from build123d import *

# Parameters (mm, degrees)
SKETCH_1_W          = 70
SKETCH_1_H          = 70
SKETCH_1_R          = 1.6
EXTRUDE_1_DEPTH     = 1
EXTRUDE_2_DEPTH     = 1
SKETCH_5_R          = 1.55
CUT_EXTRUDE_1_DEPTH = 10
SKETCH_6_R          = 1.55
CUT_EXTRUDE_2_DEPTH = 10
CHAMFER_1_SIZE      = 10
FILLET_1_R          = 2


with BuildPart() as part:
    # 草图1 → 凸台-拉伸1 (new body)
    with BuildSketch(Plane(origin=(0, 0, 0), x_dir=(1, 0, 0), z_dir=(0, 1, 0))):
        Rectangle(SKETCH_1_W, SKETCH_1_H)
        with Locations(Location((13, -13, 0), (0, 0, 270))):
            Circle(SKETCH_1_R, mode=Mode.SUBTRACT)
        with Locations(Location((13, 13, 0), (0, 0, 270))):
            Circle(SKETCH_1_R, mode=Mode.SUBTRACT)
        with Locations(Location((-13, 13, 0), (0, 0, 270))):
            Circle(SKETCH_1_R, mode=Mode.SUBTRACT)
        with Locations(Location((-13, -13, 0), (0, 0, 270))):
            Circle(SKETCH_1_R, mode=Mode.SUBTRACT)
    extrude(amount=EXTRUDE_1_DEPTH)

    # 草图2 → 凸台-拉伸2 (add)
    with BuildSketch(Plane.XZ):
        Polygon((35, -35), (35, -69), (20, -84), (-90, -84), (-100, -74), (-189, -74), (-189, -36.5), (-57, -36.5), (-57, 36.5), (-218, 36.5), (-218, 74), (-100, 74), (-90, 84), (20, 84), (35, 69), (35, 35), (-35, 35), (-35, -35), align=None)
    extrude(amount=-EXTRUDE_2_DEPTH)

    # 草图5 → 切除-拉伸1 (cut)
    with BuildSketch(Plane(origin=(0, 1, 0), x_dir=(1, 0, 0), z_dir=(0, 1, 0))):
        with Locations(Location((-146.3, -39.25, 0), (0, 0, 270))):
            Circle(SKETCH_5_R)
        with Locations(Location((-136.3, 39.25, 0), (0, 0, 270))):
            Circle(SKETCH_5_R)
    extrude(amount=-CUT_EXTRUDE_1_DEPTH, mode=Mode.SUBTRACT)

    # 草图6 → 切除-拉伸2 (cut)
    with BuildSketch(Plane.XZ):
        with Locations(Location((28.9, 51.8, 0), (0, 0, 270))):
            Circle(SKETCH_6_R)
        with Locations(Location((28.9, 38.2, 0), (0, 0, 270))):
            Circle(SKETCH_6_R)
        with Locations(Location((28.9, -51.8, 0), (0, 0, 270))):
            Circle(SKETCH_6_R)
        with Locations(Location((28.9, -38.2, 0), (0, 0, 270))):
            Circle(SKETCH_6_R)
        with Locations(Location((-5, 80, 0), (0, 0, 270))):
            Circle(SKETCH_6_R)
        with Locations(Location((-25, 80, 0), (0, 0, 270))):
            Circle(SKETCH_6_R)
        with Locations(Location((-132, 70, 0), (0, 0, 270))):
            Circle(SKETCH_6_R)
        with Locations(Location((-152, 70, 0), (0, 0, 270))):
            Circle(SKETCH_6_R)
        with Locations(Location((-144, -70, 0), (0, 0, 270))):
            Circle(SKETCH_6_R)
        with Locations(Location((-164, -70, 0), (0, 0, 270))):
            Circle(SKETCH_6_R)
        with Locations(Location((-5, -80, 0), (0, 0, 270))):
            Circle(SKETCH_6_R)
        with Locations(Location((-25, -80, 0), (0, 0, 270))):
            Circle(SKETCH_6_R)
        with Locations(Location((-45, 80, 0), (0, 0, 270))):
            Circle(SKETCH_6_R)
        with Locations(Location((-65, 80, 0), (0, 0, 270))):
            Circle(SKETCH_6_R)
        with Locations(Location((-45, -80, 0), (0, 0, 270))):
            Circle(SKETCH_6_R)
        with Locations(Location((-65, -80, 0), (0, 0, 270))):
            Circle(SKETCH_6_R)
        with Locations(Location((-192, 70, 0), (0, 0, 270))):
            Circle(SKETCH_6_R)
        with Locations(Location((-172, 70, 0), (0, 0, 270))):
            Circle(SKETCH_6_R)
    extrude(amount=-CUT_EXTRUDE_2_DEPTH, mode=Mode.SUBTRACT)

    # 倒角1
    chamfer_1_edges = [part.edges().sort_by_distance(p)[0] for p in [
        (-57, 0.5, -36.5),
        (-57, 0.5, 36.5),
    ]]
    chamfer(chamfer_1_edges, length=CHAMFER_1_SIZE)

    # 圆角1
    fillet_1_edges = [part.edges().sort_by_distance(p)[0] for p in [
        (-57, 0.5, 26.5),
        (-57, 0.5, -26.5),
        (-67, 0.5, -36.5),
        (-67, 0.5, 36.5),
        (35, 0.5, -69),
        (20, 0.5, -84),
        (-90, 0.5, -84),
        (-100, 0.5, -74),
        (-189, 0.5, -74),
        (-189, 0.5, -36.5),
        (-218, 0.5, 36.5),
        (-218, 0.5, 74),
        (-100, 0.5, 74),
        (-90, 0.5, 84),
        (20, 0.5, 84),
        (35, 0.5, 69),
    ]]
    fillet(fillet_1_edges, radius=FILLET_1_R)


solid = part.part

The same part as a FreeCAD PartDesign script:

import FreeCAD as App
import Part
import Sketcher
Q = App.Units.Quantity


def edges_at(feature, points):
    """Names of the edges that pass closest to the given points."""
    edges = feature.Shape.Edges
    near = lambda p: min(range(len(edges)), key=lambda i: edges[i].distToShape(Part.Vertex(*p))[0])
    return sorted({f"Edge{near(p) + 1}" for p in points})

doc = App.newDocument("Part")
body = doc.addObject("PartDesign::Body", "Body")

sketch1 = doc.addObject("Sketcher::SketchObject", "Sketch")
body.addObject(sketch1)
sketch1.AttachmentSupport = (doc.XZ_Plane, [""])
sketch1.MapMode = "FlatFace"
sketch1.addGeometry(Part.LineSegment(App.Vector(-35, -35, 0), App.Vector(-35, 35, 0)), False)
sketch1.addGeometry(Part.LineSegment(App.Vector(-35, 35, 0), App.Vector(35, 35, 0)), False)
sketch1.addGeometry(Part.LineSegment(App.Vector(35, 35, 0), App.Vector(35, -35, 0)), False)
sketch1.addGeometry(Part.LineSegment(App.Vector(35, -35, 0), App.Vector(-35, -35, 0)), False)
sketch1.addGeometry(Part.Circle(App.Vector(-13, 13, 0), App.Vector(0, 0, 1), 1.6), False)
sketch1.addGeometry(Part.Circle(App.Vector(13, 13, 0), App.Vector(0, 0, 1), 1.6), False)
sketch1.addGeometry(Part.Circle(App.Vector(-13, -13, 0), App.Vector(0, 0, 1), 1.6), False)
sketch1.addGeometry(Part.Circle(App.Vector(13, -13, 0), App.Vector(0, 0, 1), 1.6), False)
sketch1.addConstraint(Sketcher.Constraint("Coincident", 0, 2, 1, 1))
sketch1.addConstraint(Sketcher.Constraint("Coincident", 1, 2, 2, 1))
sketch1.addConstraint(Sketcher.Constraint("Coincident", 2, 2, 3, 1))
sketch1.addConstraint(Sketcher.Constraint("Coincident", 3, 2, 0, 1))
sketch1.addConstraint(Sketcher.Constraint("Vertical", 0))
sketch1.addConstraint(Sketcher.Constraint("Horizontal", 1))
sketch1.addConstraint(Sketcher.Constraint("Vertical", 2))
sketch1.addConstraint(Sketcher.Constraint("Horizontal", 3))
sketch1.addConstraint(Sketcher.Constraint("Equal", 4, 5))
sketch1.addConstraint(Sketcher.Constraint("Equal", 5, 6))
sketch1.addConstraint(Sketcher.Constraint("Equal", 6, 7))
sketch1.addConstraint(Sketcher.Constraint("Symmetric", 5, 3, 6, 3, -1, 1))
sketch1.addConstraint(Sketcher.Constraint("Symmetric", 4, 3, 7, 3, -1, 1))
sketch1.addConstraint(Sketcher.Constraint("Symmetric", 0, 2, 2, 2, -1, 1))
sketch1.addConstraint(Sketcher.Constraint("Symmetric", 4, 3, 5, 3, -2))
sketch1.addConstraint(Sketcher.Constraint("Equal", 3, 0))
sketch1.addConstraint(Sketcher.Constraint("Diameter", 4, Q("3.2 mm")))
sketch1.addConstraint(Sketcher.Constraint("DistanceX", 1, 1, 1, 2, Q("70 mm")))
sketch1.addConstraint(Sketcher.Constraint("DistanceX", 4, 3, -1, 1, Q("13 mm")))
sketch1.addConstraint(Sketcher.Constraint("DistanceY", -1, 1, 4, 3, Q("13 mm")))
pad1 = doc.addObject("PartDesign::Pad", "Pad")
body.addObject(pad1)
pad1.Profile = sketch1
pad1.Length = 1
pad1.Reversed = True

sketch2 = doc.addObject("Sketcher::SketchObject", "Sketch001")
body.addObject(sketch2)
sketch2.AttachmentSupport = (doc.XZ_Plane, [""])
sketch2.MapMode = "FlatFace"
sketch2.addGeometry(Part.LineSegment(App.Vector(35, -69, 0), App.Vector(35, -35, 0)), False)
sketch2.addGeometry(Part.LineSegment(App.Vector(35, -35, 0), App.Vector(-35, -35, 0)), False)
sketch2.addGeometry(Part.LineSegment(App.Vector(-35, -35, 0), App.Vector(-35, 35, 0)), False)
sketch2.addGeometry(Part.LineSegment(App.Vector(-35, 35, 0), App.Vector(35, 35, 0)), False)
sketch2.addGeometry(Part.LineSegment(App.Vector(35, 35, 0), App.Vector(35, 69, 0)), False)
sketch2.addGeometry(Part.LineSegment(App.Vector(35, 69, 0), App.Vector(20, 84, 0)), False)
sketch2.addGeometry(Part.LineSegment(App.Vector(20, 84, 0), App.Vector(-90, 84, 0)), False)
sketch2.addGeometry(Part.LineSegment(App.Vector(-90, 84, 0), App.Vector(-100, 74, 0)), False)
sketch2.addGeometry(Part.LineSegment(App.Vector(-100, 74, 0), App.Vector(-218, 74, 0)), False)
sketch2.addGeometry(Part.LineSegment(App.Vector(-218, 74, 0), App.Vector(-218, 36.5, 0)), False)
sketch2.addGeometry(Part.LineSegment(App.Vector(-218, 36.5, 0), App.Vector(-57, 36.5, 0)), False)
sketch2.addGeometry(Part.LineSegment(App.Vector(-57, 36.5, 0), App.Vector(-57, -36.5, 0)), False)
sketch2.addGeometry(Part.LineSegment(App.Vector(-57, -36.5, 0), App.Vector(-189, -36.5, 0)), False)
sketch2.addGeometry(Part.LineSegment(App.Vector(-189, -36.5, 0), App.Vector(-189, -74, 0)), False)
sketch2.addGeometry(Part.LineSegment(App.Vector(-189, -74, 0), App.Vector(-100, -74, 0)), False)
sketch2.addGeometry(Part.LineSegment(App.Vector(-100, -74, 0), App.Vector(-90, -84, 0)), False)
sketch2.addGeometry(Part.LineSegment(App.Vector(-90, -84, 0), App.Vector(20, -84, 0)), False)
sketch2.addGeometry(Part.LineSegment(App.Vector(20, -84, 0), App.Vector(35, -69, 0)), False)
sketch2.addConstraint(Sketcher.Constraint("Coincident", 0, 2, 1, 1))
sketch2.addConstraint(Sketcher.Constraint("Coincident", 1, 2, 2, 1))
sketch2.addConstraint(Sketcher.Constraint("Coincident", 2, 2, 3, 1))
sketch2.addConstraint(Sketcher.Constraint("Coincident", 3, 2, 4, 1))
sketch2.addConstraint(Sketcher.Constraint("Coincident", 4, 2, 5, 1))
sketch2.addConstraint(Sketcher.Constraint("Coincident", 5, 2, 6, 1))
sketch2.addConstraint(Sketcher.Constraint("Coincident", 6, 2, 7, 1))
sketch2.addConstraint(Sketcher.Constraint("Coincident", 7, 2, 8, 1))
sketch2.addConstraint(Sketcher.Constraint("Coincident", 8, 2, 9, 1))
sketch2.addConstraint(Sketcher.Constraint("Coincident", 9, 2, 10, 1))
sketch2.addConstraint(Sketcher.Constraint("Coincident", 10, 2, 11, 1))
sketch2.addConstraint(Sketcher.Constraint("Coincident", 11, 2, 12, 1))
sketch2.addConstraint(Sketcher.Constraint("Coincident", 12, 2, 13, 1))
sketch2.addConstraint(Sketcher.Constraint("Coincident", 13, 2, 14, 1))
sketch2.addConstraint(Sketcher.Constraint("Coincident", 14, 2, 15, 1))
sketch2.addConstraint(Sketcher.Constraint("Coincident", 15, 2, 16, 1))
sketch2.addConstraint(Sketcher.Constraint("Coincident", 16, 2, 17, 1))
sketch2.addConstraint(Sketcher.Constraint("Coincident", 17, 2, 0, 1))
sketch2.addConstraint(Sketcher.Constraint("Vertical", 0))
sketch2.addConstraint(Sketcher.Constraint("Horizontal", 1))
sketch2.addConstraint(Sketcher.Constraint("Vertical", 2))
sketch2.addConstraint(Sketcher.Constraint("Horizontal", 3))
sketch2.addConstraint(Sketcher.Constraint("Vertical", 4))
sketch2.addConstraint(Sketcher.Constraint("Horizontal", 6))
sketch2.addConstraint(Sketcher.Constraint("Horizontal", 8))
sketch2.addConstraint(Sketcher.Constraint("Vertical", 9))
sketch2.addConstraint(Sketcher.Constraint("Horizontal", 10))
sketch2.addConstraint(Sketcher.Constraint("Vertical", 11))
sketch2.addConstraint(Sketcher.Constraint("Horizontal", 12))
sketch2.addConstraint(Sketcher.Constraint("Vertical", 13))
sketch2.addConstraint(Sketcher.Constraint("Horizontal", 14))
sketch2.addConstraint(Sketcher.Constraint("Horizontal", 16))
sketch2.addConstraint(Sketcher.Constraint("Symmetric", 0, 2, 2, 2, -1, 1))
sketch2.addConstraint(Sketcher.Constraint("Symmetric", 7, 2, 14, 2, -1))
sketch2.addConstraint(Sketcher.Constraint("Symmetric", 6, 2, 15, 2, -1))
sketch2.addConstraint(Sketcher.Constraint("Symmetric", 4, 2, 17, 2, -1))
sketch2.addConstraint(Sketcher.Constraint("Perpendicular", 5, 7))
sketch2.addConstraint(Sketcher.Constraint("Perpendicular", 7, 15))
sketch2.addConstraint(Sketcher.Constraint("Perpendicular", 15, 17))
sketch2.addConstraint(Sketcher.Constraint("Equal", 3, 2))
sketch2.addConstraint(Sketcher.Constraint("Equal", 9, 13))
sketch2.addConstraint(Sketcher.Constraint("DistanceX", 1, 2, 1, 1, Q("70 mm")))
sketch2.addConstraint(Sketcher.Constraint("DistanceX", 6, 2, 6, 1, Q("110 mm")))
sketch2.addConstraint(Sketcher.Constraint("DistanceX", 8, 2, 8, 1, Q("118 mm")))
sketch2.addConstraint(Sketcher.Constraint("DistanceX", 10, 1, 10, 2, Q("161 mm")))
sketch2.addConstraint(Sketcher.Constraint("DistanceX", 12, 2, 12, 1, Q("132 mm")))
sketch2.addConstraint(Sketcher.Constraint("DistanceY", 0, 1, 0, 2, Q("34 mm")))
sketch2.addConstraint(Sketcher.Constraint("DistanceY", 11, 2, 11, 1, Q("73 mm")))
sketch2.addConstraint(Sketcher.Constraint("DistanceY", 9, 2, 9, 1, Q("37.5 mm")))
sketch2.addConstraint(Sketcher.Constraint("DistanceX", -1, 1, 5, 2, Q("20 mm")))
pad2 = doc.addObject("PartDesign::Pad", "Pad001")
body.addObject(pad2)
pad2.Profile = sketch2
pad2.Length = 1
pad2.Reversed = True

sketch3 = doc.addObject("Sketcher::SketchObject", "Sketch002")
body.addObject(sketch3)
sketch3.AttachmentSupport = (doc.XZ_Plane, [""])
sketch3.MapMode = "FlatFace"
sketch3.AttachmentOffset = App.Placement(App.Vector(0, 0, -1), App.Rotation())
sketch3.addGeometry(Part.Circle(App.Vector(-146.3, 39.25, 0), App.Vector(0, 0, 1), 1.55), False)
sketch3.addGeometry(Part.Circle(App.Vector(-136.3, -39.25, 0), App.Vector(0, 0, 1), 1.55), False)
sketch3.addConstraint(Sketcher.Constraint("Equal", 0, 1))
sketch3.addConstraint(Sketcher.Constraint("Diameter", 0, Q("3.1 mm")))
sketch3.addConstraint(Sketcher.Constraint("DistanceX", 0, 3, 1, 3, Q("10 mm")))
sketch3.addConstraint(Sketcher.Constraint("DistanceX", 0, 3, -1, 1, Q("146.3 mm")))
sketch3.addConstraint(Sketcher.Constraint("DistanceY", 1, 3, 0, 3, Q("78.5 mm")))
sketch3.addConstraint(Sketcher.Constraint("DistanceY", -1, 1, 0, 3, Q("39.25 mm")))
pocket1 = doc.addObject("PartDesign::Pocket", "Pocket")
body.addObject(pocket1)
pocket1.Profile = sketch3
pocket1.Length = 10
pocket1.Reversed = True

sketch4 = doc.addObject("Sketcher::SketchObject", "Sketch003")
body.addObject(sketch4)
sketch4.AttachmentSupport = (doc.XZ_Plane, [""])
sketch4.MapMode = "FlatFace"
sketch4.addGeometry(Part.Circle(App.Vector(28.9, 51.8, 0), App.Vector(0, 0, 1), 1.55), False)
sketch4.addGeometry(Part.Circle(App.Vector(28.9, 38.2, 0), App.Vector(0, 0, 1), 1.55), False)
sketch4.addGeometry(Part.Circle(App.Vector(28.9, -51.8, 0), App.Vector(0, 0, 1), 1.55), False)
sketch4.addGeometry(Part.Circle(App.Vector(28.9, -38.2, 0), App.Vector(0, 0, 1), 1.55), False)
sketch4.addGeometry(Part.Circle(App.Vector(-5, 80, 0), App.Vector(0, 0, 1), 1.55), False)
sketch4.addGeometry(Part.Circle(App.Vector(-25, 80, 0), App.Vector(0, 0, 1), 1.55), False)
sketch4.addGeometry(Part.Circle(App.Vector(-132, 70, 0), App.Vector(0, 0, 1), 1.55), False)
sketch4.addGeometry(Part.Circle(App.Vector(-152, 70, 0), App.Vector(0, 0, 1), 1.55), False)
sketch4.addGeometry(Part.Circle(App.Vector(-144, -70, 0), App.Vector(0, 0, 1), 1.55), False)
sketch4.addGeometry(Part.Circle(App.Vector(-164, -70, 0), App.Vector(0, 0, 1), 1.55), False)
sketch4.addGeometry(Part.Circle(App.Vector(-5, -80, 0), App.Vector(0, 0, 1), 1.55), False)
sketch4.addGeometry(Part.Circle(App.Vector(-25, -80, 0), App.Vector(0, 0, 1), 1.55), False)
sketch4.addGeometry(Part.Circle(App.Vector(-45, 80, 0), App.Vector(0, 0, 1), 1.55), False)
sketch4.addGeometry(Part.Circle(App.Vector(-65, 80, 0), App.Vector(0, 0, 1), 1.55), False)
sketch4.addGeometry(Part.Circle(App.Vector(-45, -80, 0), App.Vector(0, 0, 1), 1.55), False)
sketch4.addGeometry(Part.Circle(App.Vector(-65, -80, 0), App.Vector(0, 0, 1), 1.55), False)
sketch4.addGeometry(Part.Circle(App.Vector(-192, 70, 0), App.Vector(0, 0, 1), 1.55), False)
sketch4.addGeometry(Part.Circle(App.Vector(-172, 70, 0), App.Vector(0, 0, 1), 1.55), False)
sketch4.addConstraint(Sketcher.Constraint("Equal", 0, 1))
sketch4.addConstraint(Sketcher.Constraint("Equal", 1, 2))
sketch4.addConstraint(Sketcher.Constraint("Equal", 2, 3))
sketch4.addConstraint(Sketcher.Constraint("Equal", 3, 4))
sketch4.addConstraint(Sketcher.Constraint("Equal", 4, 5))
sketch4.addConstraint(Sketcher.Constraint("Equal", 5, 6))
sketch4.addConstraint(Sketcher.Constraint("Equal", 6, 7))
sketch4.addConstraint(Sketcher.Constraint("Equal", 7, 8))
sketch4.addConstraint(Sketcher.Constraint("Equal", 8, 9))
sketch4.addConstraint(Sketcher.Constraint("Equal", 9, 10))
sketch4.addConstraint(Sketcher.Constraint("Equal", 10, 11))
sketch4.addConstraint(Sketcher.Constraint("Equal", 11, 12))
sketch4.addConstraint(Sketcher.Constraint("Equal", 12, 13))
sketch4.addConstraint(Sketcher.Constraint("Equal", 13, 14))
sketch4.addConstraint(Sketcher.Constraint("Equal", 14, 15))
sketch4.addConstraint(Sketcher.Constraint("Equal", 15, 16))
sketch4.addConstraint(Sketcher.Constraint("Equal", 16, 17))
sketch4.addConstraint(Sketcher.Constraint("Symmetric", 0, 3, 2, 3, -1))
sketch4.addConstraint(Sketcher.Constraint("Symmetric", 1, 3, 3, 3, -1))
sketch4.addConstraint(Sketcher.Constraint("Symmetric", 4, 3, 10, 3, -1))
sketch4.addConstraint(Sketcher.Constraint("Symmetric", 5, 3, 11, 3, -1))
sketch4.addConstraint(Sketcher.Constraint("Symmetric", 12, 3, 14, 3, -1))
sketch4.addConstraint(Sketcher.Constraint("Symmetric", 13, 3, 15, 3, -1))
sketch4.addConstraint(Sketcher.Constraint("Horizontal", 4, 3, 5, 3))
sketch4.addConstraint(Sketcher.Constraint("Horizontal", 6, 3, 7, 3))
sketch4.addConstraint(Sketcher.Constraint("Horizontal", 8, 3, 9, 3))
sketch4.addConstraint(Sketcher.Constraint("Horizontal", 5, 3, 12, 3))
sketch4.addConstraint(Sketcher.Constraint("Horizontal", 12, 3, 13, 3))
sketch4.addConstraint(Sketcher.Constraint("Horizontal", 7, 3, 16, 3))
sketch4.addConstraint(Sketcher.Constraint("Horizontal", 16, 3, 17, 3))
sketch4.addConstraint(Sketcher.Constraint("Vertical", 0, 3, 1, 3))
sketch4.addConstraint(Sketcher.Constraint("Diameter", 0, Q("3.1 mm")))
sketch4.addConstraint(Sketcher.Constraint("DistanceX", 4, 3, -1, 1, Q("5 mm")))
sketch4.addConstraint(Sketcher.Constraint("DistanceY", -1, 1, 4, 3, Q("80 mm")))
sketch4.addConstraint(Sketcher.Constraint("DistanceX", 5, 3, -1, 1, Q("25 mm")))
sketch4.addConstraint(Sketcher.Constraint("DistanceX", 6, 3, -1, 1, Q("132 mm")))
sketch4.addConstraint(Sketcher.Constraint("DistanceY", -1, 1, 6, 3, Q("70 mm")))
sketch4.addConstraint(Sketcher.Constraint("DistanceX", 7, 3, -1, 1, Q("152 mm")))
sketch4.addConstraint(Sketcher.Constraint("DistanceX", 8, 3, -1, 1, Q("144 mm")))
sketch4.addConstraint(Sketcher.Constraint("DistanceY", 8, 3, -1, 1, Q("70 mm")))
sketch4.addConstraint(Sketcher.Constraint("DistanceX", 9, 3, -1, 1, Q("164 mm")))
sketch4.addConstraint(Sketcher.Constraint("DistanceX", 12, 3, -1, 1, Q("45 mm")))
sketch4.addConstraint(Sketcher.Constraint("DistanceX", 13, 3, -1, 1, Q("65 mm")))
sketch4.addConstraint(Sketcher.Constraint("DistanceX", 16, 3, -1, 1, Q("192 mm")))
sketch4.addConstraint(Sketcher.Constraint("DistanceX", 17, 3, -1, 1, Q("172 mm")))
sketch4.addConstraint(Sketcher.Constraint("DistanceY", 2, 3, 1, 3, Q("90 mm")))
sketch4.addConstraint(Sketcher.Constraint("DistanceX", -1, 1, 0, 3, Q("28.9 mm")))
sketch4.addConstraint(Sketcher.Constraint("DistanceY", -1, 1, 0, 3, Q("51.8 mm")))
pocket2 = doc.addObject("PartDesign::Pocket", "Pocket001")
body.addObject(pocket2)
pocket2.Profile = sketch4
pocket2.Length = 10
doc.recompute()

chamfer = doc.addObject("PartDesign::Chamfer", "Chamfer")
body.addObject(chamfer)
chamfer.Base = (pocket2, edges_at(pocket2, [(-57, 0.5, -36.5), (-57, 0.5, 36.5)]))
chamfer.Size = 10
doc.recompute()

fillet = doc.addObject("PartDesign::Fillet", "Fillet")
body.addObject(fillet)
fillet.Base = (chamfer, edges_at(chamfer, [
    (-57, 0.5, 26.5),
    (-57, 0.5, -26.5),
    (-67, 0.5, -36.5),
    (-67, 0.5, 36.5),
    (35, 0.5, -69),
    (20, 0.5, -84),
    (-90, 0.5, -84),
    (-100, 0.5, -74),
    (-189, 0.5, -74),
    (-189, 0.5, -36.5),
    (-218, 0.5, 36.5),
    (-218, 0.5, 74),
    (-100, 0.5, 74),
    (-90, 0.5, 84),
    (20, 0.5, 84),
    (35, 0.5, 69),
]))
fillet.Radius = 2

doc.recompute()
